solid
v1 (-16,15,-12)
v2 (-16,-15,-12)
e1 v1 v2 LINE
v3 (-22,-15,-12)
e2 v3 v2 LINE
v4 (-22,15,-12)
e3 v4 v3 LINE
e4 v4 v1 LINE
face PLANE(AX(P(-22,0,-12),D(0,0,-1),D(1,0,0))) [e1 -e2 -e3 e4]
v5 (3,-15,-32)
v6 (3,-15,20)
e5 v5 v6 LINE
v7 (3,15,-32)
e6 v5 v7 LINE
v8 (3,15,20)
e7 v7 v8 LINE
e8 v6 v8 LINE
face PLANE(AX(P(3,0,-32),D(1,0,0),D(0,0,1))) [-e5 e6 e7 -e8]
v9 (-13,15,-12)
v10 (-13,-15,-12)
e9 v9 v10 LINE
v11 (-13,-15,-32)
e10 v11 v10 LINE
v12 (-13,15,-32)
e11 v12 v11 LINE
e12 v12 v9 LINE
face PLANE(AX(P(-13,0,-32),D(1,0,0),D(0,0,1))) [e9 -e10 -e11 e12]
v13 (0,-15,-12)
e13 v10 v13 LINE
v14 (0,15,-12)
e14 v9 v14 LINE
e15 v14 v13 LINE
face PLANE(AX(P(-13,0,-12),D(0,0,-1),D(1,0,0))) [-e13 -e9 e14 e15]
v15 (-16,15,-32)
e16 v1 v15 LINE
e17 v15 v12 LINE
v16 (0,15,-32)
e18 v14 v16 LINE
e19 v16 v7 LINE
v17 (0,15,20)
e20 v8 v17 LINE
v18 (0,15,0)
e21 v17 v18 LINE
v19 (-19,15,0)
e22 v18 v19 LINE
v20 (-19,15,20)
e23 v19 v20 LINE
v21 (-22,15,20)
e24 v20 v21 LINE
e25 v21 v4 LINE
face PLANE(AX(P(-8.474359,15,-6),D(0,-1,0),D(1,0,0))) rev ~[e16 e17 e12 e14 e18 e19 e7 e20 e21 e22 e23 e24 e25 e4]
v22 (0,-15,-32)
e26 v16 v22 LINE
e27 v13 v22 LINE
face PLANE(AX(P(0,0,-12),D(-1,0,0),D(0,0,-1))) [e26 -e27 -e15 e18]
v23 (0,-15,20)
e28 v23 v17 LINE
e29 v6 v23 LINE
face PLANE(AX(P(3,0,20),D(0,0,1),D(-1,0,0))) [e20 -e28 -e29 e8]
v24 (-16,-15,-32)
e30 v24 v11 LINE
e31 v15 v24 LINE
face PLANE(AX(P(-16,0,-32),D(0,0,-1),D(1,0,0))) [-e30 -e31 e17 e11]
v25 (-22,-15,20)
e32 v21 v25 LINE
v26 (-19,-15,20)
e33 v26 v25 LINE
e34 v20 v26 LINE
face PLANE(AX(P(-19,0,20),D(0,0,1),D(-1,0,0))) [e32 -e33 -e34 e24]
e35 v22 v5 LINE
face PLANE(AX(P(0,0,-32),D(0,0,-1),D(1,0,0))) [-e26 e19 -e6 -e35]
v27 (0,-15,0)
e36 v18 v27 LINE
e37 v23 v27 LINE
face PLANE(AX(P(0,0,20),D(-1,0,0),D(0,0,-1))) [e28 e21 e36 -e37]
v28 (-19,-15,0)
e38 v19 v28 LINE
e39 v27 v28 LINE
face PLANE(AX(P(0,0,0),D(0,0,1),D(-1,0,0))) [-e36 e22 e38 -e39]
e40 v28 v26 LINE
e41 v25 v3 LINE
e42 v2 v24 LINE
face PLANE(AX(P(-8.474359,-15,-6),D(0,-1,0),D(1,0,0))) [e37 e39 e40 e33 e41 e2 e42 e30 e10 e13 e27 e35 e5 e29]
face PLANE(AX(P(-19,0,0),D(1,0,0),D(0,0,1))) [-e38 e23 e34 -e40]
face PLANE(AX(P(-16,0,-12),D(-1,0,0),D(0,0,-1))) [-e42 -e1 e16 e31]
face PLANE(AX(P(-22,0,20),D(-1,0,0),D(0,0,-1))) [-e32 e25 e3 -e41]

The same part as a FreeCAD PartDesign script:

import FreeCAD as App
import Part
import Sketcher

V = App.Vector

doc = App.newDocument("Part")
body = doc.addObject("PartDesign::Body", "Body")

sketch1 = body.newObject("Sketcher::SketchObject", "Sketch")
sketch1.AttachmentSupport = (doc.getObject("XZ_Plane"), [""])
sketch1.MapMode = "FlatFace"
sketch1.addGeometry(Part.LineSegment(V(0, 20, 0), V(0, 0, 0)), False)
sketch1.addGeometry(Part.LineSegment(V(0, 0, 0), V(-19, 0, 0)), False)
sketch1.addGeometry(Part.LineSegment(V(-19, 0, 0), V(-19, 20, 0)), False)
sketch1.addGeometry(Part.LineSegment(V(-19, 20, 0), V(-22, 20, 0)), False)
sketch1.addGeometry(Part.LineSegment(V(-22, 20, 0), V(-22, -12, 0)), False)
sketch1.addGeometry(Part.LineSegment(V(-22, -12, 0), V(-16, -12, 0)), False)
sketch1.addGeometry(Part.LineSegment(V(-16, -12, 0), V(-16, -32, 0)), False)
sketch1.addGeometry(Part.LineSegment(V(-16, -32, 0), V(-13, -32, 0)), False)
sketch1.addGeometry(Part.LineSegment(V(-13, -32, 0), V(-13, -12, 0)), False)
sketch1.addGeometry(Part.LineSegment(V(-13, -12, 0), V(0, -12, 0)), False)
sketch1.addGeometry(Part.LineSegment(V(0, -12, 0), V(0, -32, 0)), False)
sketch1.addGeometry(Part.LineSegment(V(0, -32, 0), V(3, -32, 0)), False)
sketch1.addGeometry(Part.LineSegment(V(3, -32, 0), V(3, 20, 0)), False)
sketch1.addGeometry(Part.LineSegment(V(3, 20, 0), V(0, 20, 0)), False)
sketch1.addConstraint(Sketcher.Constraint("Coincident", 0, 2, 1, 1))
sketch1.addConstraint(Sketcher.Constraint("Coincident", 1, 2, 2, 1))
sketch1.addConstraint(Sketcher.Constraint("Coincident", 2, 2, 3, 1))
sketch1.addConstraint(Sketcher.Constraint("Coincident", 3, 2, 4, 1))
sketch1.addConstraint(Sketcher.Constraint("Coincident", 4, 2, 5, 1))
sketch1.addConstraint(Sketcher.Constraint("Coincident", 5, 2, 6, 1))
sketch1.addConstraint(Sketcher.Constraint("Coincident", 6, 2, 7, 1))
sketch1.addConstraint(Sketcher.Constraint("Coincident", 7, 2, 8, 1))
sketch1.addConstraint(Sketcher.Constraint("Coincident", 8, 2, 9, 1))
sketch1.addConstraint(Sketcher.Constraint("Coincident", 9, 2, 10, 1))
sketch1.addConstraint(Sketcher.Constraint("Coincident", 10, 2, 11, 1))
sketch1.addConstraint(Sketcher.Constraint("Coincident", 11, 2, 12, 1))
sketch1.addConstraint(Sketcher.Constraint("Coincident", 12, 2, 13, 1))
sketch1.addConstraint(Sketcher.Constraint("Coincident", 13, 2, 0, 1))
sketch1.addConstraint(Sketcher.Constraint("Vertical", 0))
sketch1.addConstraint(Sketcher.Constraint("Horizontal", 1))
sketch1.addConstraint(Sketcher.Constraint("Vertical", 2))
sketch1.addConstraint(Sketcher.Constraint("Horizontal", 3))
sketch1.addConstraint(Sketcher.Constraint("Vertical", 4))
sketch1.addConstraint(Sketcher.Constraint("Horizontal", 5))
sketch1.addConstraint(Sketcher.Constraint("Vertical", 6))
sketch1.addConstraint(Sketcher.Constraint("Horizontal", 7))
sketch1.addConstraint(Sketcher.Constraint("Vertical", 8))
sketch1.addConstraint(Sketcher.Constraint("Horizontal", 9))
sketch1.addConstraint(Sketcher.Constraint("Vertical", 10))
sketch1.addConstraint(Sketcher.Constraint("Horizontal", 11))
sketch1.addConstraint(Sketcher.Constraint("Vertical", 12))
sketch1.addConstraint(Sketcher.Constraint("Horizontal", 13))
sketch1.addConstraint(Sketcher.Constraint("Coincident", 0, 2, -1, 1))
sketch1.addConstraint(Sketcher.Constraint("PointOnObject", 9, 2, -2))
sketch1.addConstraint(Sketcher.Constraint("Horizontal", 5, 2, 8, 2))
sketch1.addConstraint(Sketcher.Constraint("Horizontal", 7, 2, 10, 2))
sketch1.addConstraint(Sketcher.Constraint("Horizontal", 3, 2, 12, 2))
sketch1.addConstraint(Sketcher.Constraint("Equal", 3, 7))
sketch1.addConstraint(Sketcher.Constraint("Equal", 7, 11))
sketch1.addConstraint(Sketcher.Constraint("Equal", 2, 6))
sketch1.addConstraint(Sketcher.Constraint("DistanceX", 1, 2, 1, 1, 19.0))
sketch1.addConstraint(Sketcher.Constraint("DistanceX", 3, 2, 3, 1, 3.0))
sketch1.addConstraint(Sketcher.Constraint("DistanceX", 5, 1, 5, 2, 6.0))
sketch1.addConstraint(Sketcher.Constraint("DistanceY", 0, 2, 0, 1, 20.0))
sketch1.addConstraint(Sketcher.Constraint("DistanceY", 4, 2, 4, 1, 32.0))
pad1 = body.newObject("PartDesign::Pad", "Pad")
pad1.Profile = sketch1
pad1.Type = "TwoLengths"
pad1.Length = 15
pad1.Length2 = 15

doc.recompute()
